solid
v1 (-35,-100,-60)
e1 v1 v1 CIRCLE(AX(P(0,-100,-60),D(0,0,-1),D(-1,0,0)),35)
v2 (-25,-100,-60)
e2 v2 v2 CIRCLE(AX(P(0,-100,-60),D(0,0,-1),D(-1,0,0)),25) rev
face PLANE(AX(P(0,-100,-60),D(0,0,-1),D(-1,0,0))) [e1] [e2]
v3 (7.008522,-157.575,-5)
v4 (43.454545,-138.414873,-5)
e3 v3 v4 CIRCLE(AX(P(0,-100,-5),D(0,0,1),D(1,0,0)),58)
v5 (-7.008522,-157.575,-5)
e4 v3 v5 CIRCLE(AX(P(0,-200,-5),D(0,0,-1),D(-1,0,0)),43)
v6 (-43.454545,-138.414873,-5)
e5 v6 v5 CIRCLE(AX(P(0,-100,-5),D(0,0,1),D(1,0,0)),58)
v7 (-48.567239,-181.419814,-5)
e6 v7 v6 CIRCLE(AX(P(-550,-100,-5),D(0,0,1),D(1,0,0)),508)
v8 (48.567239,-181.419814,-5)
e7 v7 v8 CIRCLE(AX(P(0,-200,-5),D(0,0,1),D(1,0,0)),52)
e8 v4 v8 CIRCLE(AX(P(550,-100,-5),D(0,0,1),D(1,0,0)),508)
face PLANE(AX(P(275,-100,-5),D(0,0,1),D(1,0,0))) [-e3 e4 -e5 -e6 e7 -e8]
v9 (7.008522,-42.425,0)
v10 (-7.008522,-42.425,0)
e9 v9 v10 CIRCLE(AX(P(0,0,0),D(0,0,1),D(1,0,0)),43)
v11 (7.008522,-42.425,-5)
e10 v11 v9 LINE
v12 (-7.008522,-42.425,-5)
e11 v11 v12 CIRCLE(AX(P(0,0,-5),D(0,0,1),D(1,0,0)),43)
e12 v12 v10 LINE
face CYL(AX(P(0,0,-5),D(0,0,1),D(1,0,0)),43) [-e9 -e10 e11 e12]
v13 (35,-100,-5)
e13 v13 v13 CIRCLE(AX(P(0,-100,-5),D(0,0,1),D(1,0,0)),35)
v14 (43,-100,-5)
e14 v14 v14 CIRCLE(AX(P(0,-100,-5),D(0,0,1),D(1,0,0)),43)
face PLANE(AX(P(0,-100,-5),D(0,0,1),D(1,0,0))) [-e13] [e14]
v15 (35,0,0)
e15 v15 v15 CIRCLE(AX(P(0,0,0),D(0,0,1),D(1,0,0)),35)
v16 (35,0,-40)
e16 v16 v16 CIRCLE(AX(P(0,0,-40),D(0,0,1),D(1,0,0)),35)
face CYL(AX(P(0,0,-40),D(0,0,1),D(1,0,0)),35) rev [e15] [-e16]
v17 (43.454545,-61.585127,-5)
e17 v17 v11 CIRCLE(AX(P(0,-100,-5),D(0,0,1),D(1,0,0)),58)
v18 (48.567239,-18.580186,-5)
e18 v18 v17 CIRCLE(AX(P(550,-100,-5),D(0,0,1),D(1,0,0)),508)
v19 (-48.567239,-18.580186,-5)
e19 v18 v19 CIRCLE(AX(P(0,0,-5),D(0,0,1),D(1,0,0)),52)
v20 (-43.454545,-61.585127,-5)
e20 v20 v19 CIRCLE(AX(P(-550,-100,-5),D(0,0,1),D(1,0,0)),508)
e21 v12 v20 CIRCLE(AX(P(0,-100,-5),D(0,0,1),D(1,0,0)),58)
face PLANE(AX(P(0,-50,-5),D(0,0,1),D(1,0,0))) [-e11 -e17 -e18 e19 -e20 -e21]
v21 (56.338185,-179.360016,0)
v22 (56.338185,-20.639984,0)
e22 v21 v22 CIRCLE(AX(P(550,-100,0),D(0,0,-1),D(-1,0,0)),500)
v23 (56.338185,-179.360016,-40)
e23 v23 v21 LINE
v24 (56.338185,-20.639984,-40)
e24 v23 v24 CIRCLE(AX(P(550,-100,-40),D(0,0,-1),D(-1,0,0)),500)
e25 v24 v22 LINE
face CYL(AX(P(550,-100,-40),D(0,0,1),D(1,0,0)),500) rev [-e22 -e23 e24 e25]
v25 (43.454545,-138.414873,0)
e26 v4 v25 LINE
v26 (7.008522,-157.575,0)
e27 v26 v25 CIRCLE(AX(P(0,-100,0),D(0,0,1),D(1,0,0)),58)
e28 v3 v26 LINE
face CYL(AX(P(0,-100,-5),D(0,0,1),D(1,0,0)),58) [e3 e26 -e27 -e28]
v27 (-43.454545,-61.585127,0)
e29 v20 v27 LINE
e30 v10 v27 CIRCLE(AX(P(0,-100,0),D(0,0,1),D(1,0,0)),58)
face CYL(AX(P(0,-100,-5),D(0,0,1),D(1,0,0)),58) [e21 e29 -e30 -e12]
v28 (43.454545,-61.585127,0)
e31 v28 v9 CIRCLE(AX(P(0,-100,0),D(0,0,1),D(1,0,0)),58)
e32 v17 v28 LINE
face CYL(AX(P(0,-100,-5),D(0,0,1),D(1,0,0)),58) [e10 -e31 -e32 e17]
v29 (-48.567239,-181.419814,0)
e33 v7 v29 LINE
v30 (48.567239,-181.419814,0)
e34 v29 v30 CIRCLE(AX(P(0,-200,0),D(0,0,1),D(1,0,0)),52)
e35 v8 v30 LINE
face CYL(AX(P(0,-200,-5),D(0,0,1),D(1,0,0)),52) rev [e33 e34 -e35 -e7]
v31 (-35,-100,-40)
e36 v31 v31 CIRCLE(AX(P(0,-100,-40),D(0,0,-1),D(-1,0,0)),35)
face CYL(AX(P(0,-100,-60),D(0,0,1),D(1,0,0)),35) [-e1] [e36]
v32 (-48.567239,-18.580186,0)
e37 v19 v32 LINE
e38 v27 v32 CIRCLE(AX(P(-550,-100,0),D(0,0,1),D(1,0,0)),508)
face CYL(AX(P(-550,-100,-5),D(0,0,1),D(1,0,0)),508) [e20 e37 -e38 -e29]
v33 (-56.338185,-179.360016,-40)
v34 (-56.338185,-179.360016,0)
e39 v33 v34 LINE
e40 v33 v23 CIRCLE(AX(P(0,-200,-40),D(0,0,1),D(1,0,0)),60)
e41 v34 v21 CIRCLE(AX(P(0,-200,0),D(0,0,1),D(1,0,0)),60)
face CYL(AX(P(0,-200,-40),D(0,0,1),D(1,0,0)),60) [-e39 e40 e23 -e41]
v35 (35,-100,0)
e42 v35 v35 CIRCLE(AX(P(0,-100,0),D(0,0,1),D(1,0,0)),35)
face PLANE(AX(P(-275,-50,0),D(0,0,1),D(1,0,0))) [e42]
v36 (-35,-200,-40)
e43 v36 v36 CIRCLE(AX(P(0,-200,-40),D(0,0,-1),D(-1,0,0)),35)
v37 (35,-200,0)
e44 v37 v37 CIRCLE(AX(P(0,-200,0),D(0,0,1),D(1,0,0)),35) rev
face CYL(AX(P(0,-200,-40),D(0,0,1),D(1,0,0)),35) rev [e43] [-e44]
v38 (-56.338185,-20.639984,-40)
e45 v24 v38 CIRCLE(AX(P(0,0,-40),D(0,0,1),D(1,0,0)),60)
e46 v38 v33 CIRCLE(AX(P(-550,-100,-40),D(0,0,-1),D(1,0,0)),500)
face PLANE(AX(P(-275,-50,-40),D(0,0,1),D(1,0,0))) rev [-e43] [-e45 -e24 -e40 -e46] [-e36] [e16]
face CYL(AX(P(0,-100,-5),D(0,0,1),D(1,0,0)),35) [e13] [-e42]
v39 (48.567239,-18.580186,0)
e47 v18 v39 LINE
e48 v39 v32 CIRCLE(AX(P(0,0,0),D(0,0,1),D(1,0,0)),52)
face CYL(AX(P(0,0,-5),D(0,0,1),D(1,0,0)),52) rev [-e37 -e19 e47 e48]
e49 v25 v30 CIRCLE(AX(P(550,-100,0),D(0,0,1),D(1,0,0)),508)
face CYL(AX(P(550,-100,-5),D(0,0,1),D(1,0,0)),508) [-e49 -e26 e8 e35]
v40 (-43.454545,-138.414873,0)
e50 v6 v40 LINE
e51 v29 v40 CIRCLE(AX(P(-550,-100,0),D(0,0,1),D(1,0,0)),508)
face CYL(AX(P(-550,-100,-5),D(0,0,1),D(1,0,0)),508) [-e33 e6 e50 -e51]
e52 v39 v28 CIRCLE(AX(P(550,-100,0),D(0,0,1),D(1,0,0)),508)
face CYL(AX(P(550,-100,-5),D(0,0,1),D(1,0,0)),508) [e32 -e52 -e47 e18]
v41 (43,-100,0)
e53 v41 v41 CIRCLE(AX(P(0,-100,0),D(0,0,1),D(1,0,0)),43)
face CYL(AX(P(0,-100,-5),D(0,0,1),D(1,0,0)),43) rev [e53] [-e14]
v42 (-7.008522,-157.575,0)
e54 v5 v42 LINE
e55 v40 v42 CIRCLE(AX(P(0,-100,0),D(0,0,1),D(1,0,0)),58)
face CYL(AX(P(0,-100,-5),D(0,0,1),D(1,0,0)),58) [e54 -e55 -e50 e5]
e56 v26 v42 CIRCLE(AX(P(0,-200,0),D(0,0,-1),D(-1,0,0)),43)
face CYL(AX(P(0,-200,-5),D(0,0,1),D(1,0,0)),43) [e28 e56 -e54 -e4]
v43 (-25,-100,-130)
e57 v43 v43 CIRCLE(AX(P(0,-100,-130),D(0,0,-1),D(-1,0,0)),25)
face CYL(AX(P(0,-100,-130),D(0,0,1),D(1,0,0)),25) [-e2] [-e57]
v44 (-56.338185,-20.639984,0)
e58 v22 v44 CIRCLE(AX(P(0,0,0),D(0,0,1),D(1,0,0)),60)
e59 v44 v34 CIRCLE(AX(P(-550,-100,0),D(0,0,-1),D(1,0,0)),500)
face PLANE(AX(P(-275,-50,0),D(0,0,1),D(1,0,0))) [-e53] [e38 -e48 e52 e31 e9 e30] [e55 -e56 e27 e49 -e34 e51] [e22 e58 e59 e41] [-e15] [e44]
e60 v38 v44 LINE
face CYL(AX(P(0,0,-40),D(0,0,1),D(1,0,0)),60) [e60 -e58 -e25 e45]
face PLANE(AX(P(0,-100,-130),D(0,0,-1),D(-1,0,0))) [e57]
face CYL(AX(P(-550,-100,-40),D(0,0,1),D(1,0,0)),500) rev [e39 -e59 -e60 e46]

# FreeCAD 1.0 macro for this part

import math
import FreeCAD as App
import Part
import Sketcher
Q = App.Units.Quantity

doc = App.newDocument("Part")
params = doc.addObject("Spreadsheet::Sheet", "Params")
for row, (alias, value) in enumerate([
    ("sketch1_radius", "60 mm"),
    ("sketch1_radius2", "500 mm"),
    ("pad1_length", "40 mm"),
    ("sketch2_diameter", "86 mm"),
    ("sketch2_diameter2", "70 mm"),
    ("sketch2_radius", "58 mm"),
    ("sketch2_radius2", "508 mm"),
    ("sketch2_radius3", "52 mm"),
    ("pocket1_length", "5 mm"),
    ("sketch3_diameter", "70 mm"),
    ("sketch4_diameter", "70 mm"),
    ("pad2_length", "20 mm"),
    ("sketch5_diameter", "50 mm"),
    ("pad3_length", "90 mm"),
], start=1):
    params.set(f"A{row}", alias)
    params.set(f"B{row}", "=" + value)
    params.setAlias(f"B{row}", alias)

body = doc.addObject("PartDesign::Body", "Body")

sketch1 = body.newObject("Sketcher::SketchObject", "Sketch")
sketch1.AttachmentSupport = (doc.getObject("XY_Plane"), [""])
sketch1.MapMode = "FlatFace"
sketch1.addGeometry([
    Part.ArcOfCircle(Part.Circle(App.Vector(0, 0, 0), App.Vector(0, 0, 1), 60), math.radians(-20.120748), math.radians(200.120748)),
    Part.ArcOfCircle(Part.Circle(App.Vector(-550, -100, 0), App.Vector(0, 0, 1), 500), math.radians(-9.13261), math.radians(9.13261)),
    Part.ArcOfCircle(Part.Circle(App.Vector(0, -200, 0), App.Vector(0, 0, 1), 60), math.radians(159.879252), math.radians(380.120748)),
    Part.ArcOfCircle(Part.Circle(App.Vector(550, -100, 0), App.Vector(0, 0, 1), 500), math.radians(170.86739), math.radians(189.13261)),
], False)
sketch1.addConstraint([
    Sketcher.Constraint("Coincident", 0, 2, 1, 2),
    Sketcher.Constraint("Coincident", 1, 1, 2, 1),
    Sketcher.Constraint("Coincident", 2, 2, 3, 2),
    Sketcher.Constraint("Coincident", 3, 1, 0, 1),
    Sketcher.Constraint("Coincident", 0, 3, -1, 1),
    Sketcher.Constraint("Equal", 0, 2),
    Sketcher.Constraint("Equal", 1, 3),
    Sketcher.Constraint("Symmetric", 1, 3, 3, 3, -2),
    Sketcher.Constraint("PointOnObject", 2, 3, -2),
    Sketcher.Constraint("Vertical", 0, 2, 1, 1),
    Sketcher.Constraint("Radius", 0, Q("60 mm")),
    Sketcher.Constraint("Radius", 1, Q("500 mm")),
    Sketcher.Constraint("DistanceX", 1, 3, -1, 1, Q("550 mm")),
    Sketcher.Constraint("DistanceY", 1, 3, -1, 1, Q("100 mm")),
])
sketch1.setExpression("Constraints[10]", "Params.sketch1_radius")
sketch1.setExpression("Constraints[11]", "Params.sketch1_radius2")
pad1 = body.newObject("PartDesign::Pad", "Pad")
pad1.Profile = sketch1
pad1.setExpression("Length", "Params.pad1_length")
pad1.Reversed = True

sketch2 = body.newObject("Sketcher::SketchObject", "Sketch001")
sketch2.AttachmentSupport = (doc.getObject("XY_Plane"), [""])
sketch2.MapMode = "FlatFace"
sketch2.addGeometry([
    Part.Circle(App.Vector(0, -100, 0), App.Vector(0, 0, 1), 43),
    Part.Circle(App.Vector(0, -100, 0), App.Vector(0, 0, 1), 35),
    Part.ArcOfCircle(Part.Circle(App.Vector(0, 0, 0), App.Vector(0, 0, 1), 43), math.radians(-80.619576), math.radians(260.619576)),
    Part.ArcOfCircle(Part.Circle(App.Vector(0, -100, 0), App.Vector(0, 0, 1), 58), math.radians(41.477463), math.radians(83.059614)),
    Part.ArcOfCircle(Part.Circle(App.Vector(550, -100, 0), App.Vector(0, 0, 1), 508), math.radians(170.777128), math.radians(175.663163)),
    Part.ArcOfCircle(Part.Circle(App.Vector(0, 0, 0), App.Vector(0, 0, 1), 52), math.radians(-20.935163), math.radians(200.935163)),
    Part.ArcOfCircle(Part.Circle(App.Vector(-550, -100, 0), App.Vector(0, 0, 1), 508), math.radians(4.336837), math.radians(9.222872)),
    Part.ArcOfCircle(Part.Circle(App.Vector(0, -100, 0), App.Vector(0, 0, 1), 58), math.radians(96.940386), math.radians(138.522537)),
    Part.ArcOfCircle(Part.Circle(App.Vector(0, -100, 0), App.Vector(0, 0, 1), 58), math.radians(-83.059614), math.radians(-41.477463)),
    Part.ArcOfCircle(Part.Circle(App.Vector(0, -200, 0), App.Vector(0, 0, 1), 43), math.radians(99.380424), math.radians(440.619576)),
    Part.ArcOfCircle(Part.Circle(App.Vector(0, -100, 0), App.Vector(0, 0, 1), 58), math.radians(-138.522537), math.radians(-96.940386)),
    Part.ArcOfCircle(Part.Circle(App.Vector(-550, -100, 0), App.Vector(0, 0, 1), 508), math.radians(-9.222872), math.radians(-4.336837)),
    Part.ArcOfCircle(Part.Circle(App.Vector(0, -200, 0), App.Vector(0, 0, 1), 52), math.radians(159.064837), math.radians(380.935163)),
    Part.ArcOfCircle(Part.Circle(App.Vector(550, -100, 0), App.Vector(0, 0, 1), 508), math.radians(-175.663163), math.radians(-170.777128)),
], False)
sketch2.addConstraint([
    Sketcher.Constraint("Coincident", 2, 1, 3, 2),
    Sketcher.Constraint("Coincident", 3, 1, 4, 2),
    Sketcher.Constraint("Coincident", 4, 1, 5, 1),
    Sketcher.Constraint("Coincident", 5, 2, 6, 2),
    Sketcher.Constraint("Coincident", 6, 1, 7, 2),
    Sketcher.Constraint("Coincident", 7, 1, 2, 2),
    Sketcher.Constraint("Coincident", 8, 1, 9, 2),
    Sketcher.Constraint("Coincident", 9, 1, 10, 2),
    Sketcher.Constraint("Coincident", 10, 1, 11, 2),
    Sketcher.Constraint("Coincident", 11, 1, 12, 1),
    Sketcher.Constraint("Coincident", 12, 2, 13, 2),
    Sketcher.Constraint("Coincident", 13, 1, 8, 2),
    Sketcher.Constraint("Coincident", 2, 3, -1, 1),
    Sketcher.Constraint("Coincident", 5, 3, -1, 1),
    Sketcher.Constraint("Coincident", 1, 3, 0, 3),
    Sketcher.Constraint("Coincident", 3, 3, 0, 3),
    Sketcher.Constraint("Coincident", 7, 3, 0, 3),
    Sketcher.Constraint("Coincident", 8, 3, 0, 3),
    Sketcher.Constraint("Coincident", 10, 3, 0, 3),
    Sketcher.Constraint("Coincident", 11, 3, 6, 3),
    Sketcher.Constraint("Coincident", 12, 3, 9, 3),
    Sketcher.Constraint("Coincident", 13, 3, 4, 3),
    Sketcher.Constraint("Equal", 0, 2),
    Sketcher.Constraint("Equal", 4, 6),
    Sketcher.Constraint("Equal", 3, 7),
    Sketcher.Constraint("Equal", 7, 8),
    Sketcher.Constraint("Equal", 2, 9),
    Sketcher.Constraint("Equal", 8, 10),
    Sketcher.Constraint("Equal", 6, 11),
    Sketcher.Constraint("Equal", 5, 12),
    Sketcher.Constraint("Equal", 11, 13),
    Sketcher.Constraint("Symmetric", 4, 3, 6, 3, -2),
    Sketcher.Constraint("Symmetric", 8, 1, 9, 1, -2),
    Sketcher.Constraint("Horizontal", 3, 3, 4, 3),
    Sketcher.Constraint("Vertical", 2, 1, 8, 1),
    Sketcher.Constraint("Diameter", 0, Q("86 mm")),
    Sketcher.Constraint("Diameter", 1, Q("70 mm")),
    Sketcher.Constraint("Radius", 3, Q("58 mm")),
    Sketcher.Constraint("Radius", 4, Q("508 mm")),
    Sketcher.Constraint("Radius", 5, Q("52 mm")),
    Sketcher.Constraint("DistanceY", 0, 3, -1, 1, Q("100 mm")),
    Sketcher.Constraint("DistanceX", -1, 1, 4, 3, Q("550 mm")),
])
sketch2.setExpression("Constraints[35]", "Params.sketch2_diameter")
sketch2.setExpression("Constraints[36]", "Params.sketch2_diameter2")
sketch2.setExpression("Constraints[37]", "Params.sketch2_radius")
sketch2.setExpression("Constraints[38]", "Params.sketch2_radius2")
sketch2.setExpression("Constraints[39]", "Params.sketch2_radius3")
pocket1 = body.newObject("PartDesign::Pocket", "Pocket")
pocket1.Profile = sketch2
pocket1.setExpression("Length", "Params.pocket1_length")

sketch3 = body.newObject("Sketcher::SketchObject", "Sketch002")
sketch3.AttachmentSupport = (doc.getObject("XY_Plane"), [""])
sketch3.MapMode = "FlatFace"
sketch3.addGeometry([
    Part.Circle(App.Vector(0, 0, 0), App.Vector(0, 0, 1), 35),
    Part.Circle(App.Vector(0, -200, 0), App.Vector(0, 0, 1), 35),
], False)
sketch3.addConstraint([
    Sketcher.Constraint("Coincident", 0, 3, -1, 1),
    Sketcher.Constraint("Equal", 0, 1),
    Sketcher.Constraint("PointOnObject", 1, 3, -2),
    Sketcher.Constraint("Diameter", 0, Q("70 mm")),
    Sketcher.Constraint("DistanceY", 1, 3, -1, 1, Q("200 mm")),
])
sketch3.setExpression("Constraints[3]", "Params.sketch3_diameter")
pocket2 = body.newObject("PartDesign::Pocket", "Pocket001")
pocket2.Profile = sketch3
pocket2.Type = "ThroughAll"
pocket2.Midplane = True

sketch4 = body.newObject("Sketcher::SketchObject", "Sketch003")
sketch4.AttachmentSupport = (doc.getObject("XY_Plane"), [""])
sketch4.MapMode = "FlatFace"
sketch4.AttachmentOffset = App.Placement(App.Vector(0, 0, -40), App.Rotation())
sketch4.addGeometry(Part.Circle(App.Vector(0, -100, 0), App.Vector(0, 0, 1), 35), False)
sketch4.addConstraint([
    Sketcher.Constraint("PointOnObject", 0, 3, -2),
    Sketcher.Constraint("Diameter", 0, Q("70 mm")),
    Sketcher.Constraint("DistanceY", 0, 3, -1, 1, Q("100 mm")),
])
sketch4.setExpression("Constraints[1]", "Params.sketch4_diameter")
pad2 = body.newObject("PartDesign::Pad", "Pad001")
pad2.Profile = sketch4
pad2.setExpression("Length", "Params.pad2_length")
pad2.Reversed = True

sketch5 = body.newObject("Sketcher::SketchObject", "Sketch004")
sketch5.AttachmentSupport = (doc.getObject("XY_Plane"), [""])
sketch5.MapMode = "FlatFace"
sketch5.AttachmentOffset = App.Placement(App.Vector(0, 0, -40), App.Rotation())
sketch5.addGeometry(Part.Circle(App.Vector(0, -100, 0), App.Vector(0, 0, 1), 25), False)
sketch5.addConstraint([
    Sketcher.Constraint("PointOnObject", 0, 3, -2),
    Sketcher.Constraint("Diameter", 0, Q("50 mm")),
    Sketcher.Constraint("DistanceY", 0, 3, -1, 1, Q("100 mm")),
])
sketch5.setExpression("Constraints[1]", "Params.sketch5_diameter")
pad3 = body.newObject("PartDesign::Pad", "Pad002")
pad3.Profile = sketch5
pad3.setExpression("Length", "Params.pad3_length")
pad3.Reversed = True

doc.recompute()
